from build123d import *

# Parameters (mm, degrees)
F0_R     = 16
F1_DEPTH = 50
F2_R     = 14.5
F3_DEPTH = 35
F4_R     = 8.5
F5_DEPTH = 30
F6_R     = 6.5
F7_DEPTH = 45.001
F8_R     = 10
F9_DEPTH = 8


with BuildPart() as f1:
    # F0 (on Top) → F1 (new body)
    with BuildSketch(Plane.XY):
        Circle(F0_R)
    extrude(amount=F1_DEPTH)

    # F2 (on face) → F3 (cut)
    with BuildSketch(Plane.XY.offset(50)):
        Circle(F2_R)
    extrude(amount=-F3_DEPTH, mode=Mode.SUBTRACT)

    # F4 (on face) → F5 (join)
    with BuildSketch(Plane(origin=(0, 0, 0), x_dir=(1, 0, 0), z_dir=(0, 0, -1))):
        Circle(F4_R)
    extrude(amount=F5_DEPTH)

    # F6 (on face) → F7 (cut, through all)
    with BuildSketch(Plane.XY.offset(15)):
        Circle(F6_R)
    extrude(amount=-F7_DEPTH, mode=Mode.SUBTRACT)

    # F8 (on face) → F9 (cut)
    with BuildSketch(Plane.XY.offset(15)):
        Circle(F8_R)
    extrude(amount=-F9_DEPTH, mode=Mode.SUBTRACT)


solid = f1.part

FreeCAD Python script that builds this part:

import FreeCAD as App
import Part
import Sketcher
from FreeCAD import Vector

doc = App.newDocument("Part")
body = doc.addObject("PartDesign::Body", "Body")

# Sketch on XY plane
sketch1 = body.newObject("Sketcher::SketchObject", "Sketch")
sketch1.AttachmentSupport = (doc.getObject("XY_Plane"), [""])
sketch1.MapMode = "FlatFace"
sketch1.addGeometry(Part.Circle(Vector(0, 0, 0), Vector(0, 0, 1), 16), False)
sketch1.addConstraint([
    Sketcher.Constraint("Coincident", 0, 3, -1, 1),
    Sketcher.Constraint("Diameter", 0, 32.0),
])
pad1 = body.newObject("PartDesign::Pad", "Pad")
pad1.Profile = sketch1
pad1.Length = 50

# Sketch on XY plane
sketch2 = body.newObject("Sketcher::SketchObject", "Sketch001")
sketch2.AttachmentSupport = (doc.getObject("XY_Plane"), [""])
sketch2.MapMode = "FlatFace"
sketch2.AttachmentOffset = App.Placement(Vector(0, 0, 50), App.Rotation())
sketch2.addGeometry(Part.Circle(Vector(0, 0, 0), Vector(0, 0, 1), 14), False)
sketch2.addConstraint([
    Sketcher.Constraint("Coincident", 0, 3, -1, 1),
    Sketcher.Constraint("Diameter", 0, 29.0),
])
pocket1 = body.newObject("PartDesign::Pocket", "Pocket")
pocket1.Profile = sketch2
pocket1.Length = 35

# Sketch on XY plane
sketch3 = body.newObject("Sketcher::SketchObject", "Sketch002")
sketch3.AttachmentSupport = (doc.getObject("XY_Plane"), [""])
sketch3.MapMode = "FlatFace"
sketch3.addGeometry(Part.Circle(Vector(0, 0, 0), Vector(0, 0, 1), 8), False)
sketch3.addConstraint([
    Sketcher.Constraint("Coincident", 0, 3, -1, 1),
    Sketcher.Constraint("Diameter", 0, 17.0),
])
pad2 = body.newObject("PartDesign::Pad", "Pad001")
pad2.Profile = sketch3
pad2.Length = 30
pad2.Reversed = True

# Sketch on XY plane
sketch4 = body.newObject("Sketcher::SketchObject", "Sketch003")
sketch4.AttachmentSupport = (doc.getObject("XY_Plane"), [""])
sketch4.MapMode = "FlatFace"
sketch4.AttachmentOffset = App.Placement(Vector(0, 0, 15), App.Rotation())
sketch4.addGeometry(Part.Circle(Vector(0, 0, 0), Vector(0, 0, 1), 6), False)
sketch4.addConstraint([
    Sketcher.Constraint("Coincident", 0, 3, -1, 1),
    Sketcher.Constraint("Diameter", 0, 13.0),
])
pocket2 = body.newObject("PartDesign::Pocket", "Pocket001")
pocket2.Profile = sketch4
pocket2.Type = "ThroughAll"

# Sketch on XY plane
sketch5 = body.newObject("Sketcher::SketchObject", "Sketch004")
sketch5.AttachmentSupport = (doc.getObject("XY_Plane"), [""])
sketch5.MapMode = "FlatFace"
sketch5.AttachmentOffset = App.Placement(Vector(0, 0, 15), App.Rotation())
sketch5.addGeometry(Part.Circle(Vector(0, 0, 0), Vector(0, 0, 1), 10), False)
sketch5.addConstraint([
    Sketcher.Constraint("Coincident", 0, 3, -1, 1),
    Sketcher.Constraint("Diameter", 0, 20.0),
])
pocket3 = body.newObject("PartDesign::Pocket", "Pocket002")
pocket3.Profile = sketch5
pocket3.Length = 8

doc.recompute()
